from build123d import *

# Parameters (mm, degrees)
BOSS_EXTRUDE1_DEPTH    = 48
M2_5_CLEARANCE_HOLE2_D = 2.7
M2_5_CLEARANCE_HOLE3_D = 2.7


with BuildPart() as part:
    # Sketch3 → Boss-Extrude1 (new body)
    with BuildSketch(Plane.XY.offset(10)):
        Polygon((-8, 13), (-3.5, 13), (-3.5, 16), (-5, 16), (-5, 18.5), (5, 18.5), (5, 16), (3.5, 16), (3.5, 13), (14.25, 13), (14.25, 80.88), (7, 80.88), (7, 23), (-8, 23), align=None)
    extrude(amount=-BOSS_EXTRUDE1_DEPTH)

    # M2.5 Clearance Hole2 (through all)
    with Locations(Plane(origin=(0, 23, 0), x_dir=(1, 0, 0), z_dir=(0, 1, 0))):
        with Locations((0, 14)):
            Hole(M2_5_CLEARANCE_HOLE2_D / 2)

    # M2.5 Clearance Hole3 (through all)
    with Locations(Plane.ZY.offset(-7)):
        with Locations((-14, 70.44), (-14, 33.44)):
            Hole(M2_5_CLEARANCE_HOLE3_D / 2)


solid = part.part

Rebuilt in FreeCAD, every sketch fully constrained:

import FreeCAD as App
import Part
import Sketcher

V = App.Vector
Q = App.Units.Quantity

doc = App.newDocument("Part")
body = doc.addObject("PartDesign::Body", "Body")

# Sketch on XY plane
sketch1 = doc.addObject("Sketcher::SketchObject", "Sketch")
body.addObject(sketch1)
sketch1.AttachmentSupport = (doc.XY_Plane, [""])
sketch1.MapMode = "FlatFace"
sketch1.AttachmentOffset = App.Placement(V(0, 0, 10), App.Rotation())
sketch1.addGeometry(Part.LineSegment(V(-8, 13, 0), V(-3.5, 13, 0)), False)
sketch1.addGeometry(Part.LineSegment(V(-3.5, 13, 0), V(-3.5, 16, 0)), False)
sketch1.addGeometry(Part.LineSegment(V(-3.5, 16, 0), V(-5, 16, 0)), False)
sketch1.addGeometry(Part.LineSegment(V(-5, 16, 0), V(-5, 18.5, 0)), False)
sketch1.addGeometry(Part.LineSegment(V(-5, 18.5, 0), V(5, 18.5, 0)), False)
sketch1.addGeometry(Part.LineSegment(V(5, 18.5, 0), V(5, 16, 0)), False)
sketch1.addGeometry(Part.LineSegment(V(5, 16, 0), V(3.5, 16, 0)), False)
sketch1.addGeometry(Part.LineSegment(V(3.5, 16, 0), V(3.5, 13, 0)), False)
sketch1.addGeometry(Part.LineSegment(V(3.5, 13, 0), V(14.2, 13, 0)), False)
sketch1.addGeometry(Part.LineSegment(V(14.2, 13, 0), V(14.2, 80.9, 0)), False)
sketch1.addGeometry(Part.LineSegment(V(14.2, 80.9, 0), V(7, 80.9, 0)), False)
sketch1.addGeometry(Part.LineSegment(V(7, 80.9, 0), V(7, 23, 0)), False)
sketch1.addGeometry(Part.LineSegment(V(7, 23, 0), V(-8, 23, 0)), False)
sketch1.addGeometry(Part.LineSegment(V(-8, 23, 0), V(-8, 13, 0)), False)
sketch1.addConstraint(Sketcher.Constraint("Coincident", 0, 2, 1, 1))
sketch1.addConstraint(Sketcher.Constraint("Coincident", 1, 2, 2, 1))
sketch1.addConstraint(Sketcher.Constraint("Coincident", 2, 2, 3, 1))
sketch1.addConstraint(Sketcher.Constraint("Coincident", 3, 2, 4, 1))
sketch1.addConstraint(Sketcher.Constraint("Coincident", 4, 2, 5, 1))
sketch1.addConstraint(Sketcher.Constraint("Coincident", 5, 2, 6, 1))
sketch1.addConstraint(Sketcher.Constraint("Coincident", 6, 2, 7, 1))
sketch1.addConstraint(Sketcher.Constraint("Coincident", 7, 2, 8, 1))
sketch1.addConstraint(Sketcher.Constraint("Coincident", 8, 2, 9, 1))
sketch1.addConstraint(Sketcher.Constraint("Coincident", 9, 2, 10, 1))
sketch1.addConstraint(Sketcher.Constraint("Coincident", 10, 2, 11, 1))
sketch1.addConstraint(Sketcher.Constraint("Coincident", 11, 2, 12, 1))
sketch1.addConstraint(Sketcher.Constraint("Coincident", 12, 2, 13, 1))
sketch1.addConstraint(Sketcher.Constraint("Coincident", 13, 2, 0, 1))
sketch1.addConstraint(Sketcher.Constraint("Horizontal", 0))
sketch1.addConstraint(Sketcher.Constraint("Vertical", 1))
sketch1.addConstraint(Sketcher.Constraint("Horizontal", 2))
sketch1.addConstraint(Sketcher.Constraint("Vertical", 3))
sketch1.addConstraint(Sketcher.Constraint("Horizontal", 4))
sketch1.addConstraint(Sketcher.Constraint("Vertical", 5))
sketch1.addConstraint(Sketcher.Constraint("Horizontal", 6))
sketch1.addConstraint(Sketcher.Constraint("Vertical", 7))
sketch1.addConstraint(Sketcher.Constraint("Horizontal", 8))
sketch1.addConstraint(Sketcher.Constraint("Vertical", 9))
sketch1.addConstraint(Sketcher.Constraint("Horizontal", 10))
sketch1.addConstraint(Sketcher.Constraint("Vertical", 11))
sketch1.addConstraint(Sketcher.Constraint("Horizontal", 12))
sketch1.addConstraint(Sketcher.Constraint("Vertical", 13))
sketch1.addConstraint(Sketcher.Constraint("Symmetric", 2, 2, 5, 2, -2))
sketch1.addConstraint(Sketcher.Constraint("Symmetric", 0, 2, 7, 2, -2))
sketch1.addConstraint(Sketcher.Constraint("Equal", 4, 13))
sketch1.addConstraint(Sketcher.Constraint("DistanceX", 4, 1, 4, 2, Q("10 mm")))
sketch1.addConstraint(Sketcher.Constraint("DistanceX", 12, 2, 12, 1, Q("15 mm")))
sketch1.addConstraint(Sketcher.Constraint("DistanceY", 1, 1, 1, 2, Q("3 mm")))
sketch1.addConstraint(Sketcher.Constraint("DistanceX", 0, 1, 0, 2, Q("4.5 mm")))
sketch1.addConstraint(Sketcher.Constraint("DistanceX", 2, 2, 2, 1, Q("1.5 mm")))
sketch1.addConstraint(Sketcher.Constraint("DistanceY", 3, 1, 3, 2, Q("2.5 mm")))
sketch1.addConstraint(Sketcher.Constraint("DistanceY", -1, 1, 0, 2, Q("13 mm")))
sketch1.addConstraint(Sketcher.Constraint("DistanceX", 8, 1, 8, 2, Q("10.75 mm")))
sketch1.addConstraint(Sketcher.Constraint("DistanceY", 9, 1, 9, 2, Q("67.88 mm")))
pad1 = doc.addObject("PartDesign::Pad", "Pad")
body.addObject(pad1)
pad1.Profile = sketch1
pad1.Length = 48
pad1.Reversed = True

# Sketch on XZ plane
sketch2 = doc.addObject("Sketcher::SketchObject", "Sketch001")
body.addObject(sketch2)
sketch2.AttachmentSupport = (doc.XZ_Plane, [""])
sketch2.MapMode = "FlatFace"
sketch2.AttachmentOffset = App.Placement(V(0, 0, -23), App.Rotation())
sketch2.addGeometry(Part.Circle(V(0, -14, 0), V(0, 0, 1), 1.4), False)
sketch2.addConstraint(Sketcher.Constraint("PointOnObject", 0, 3, -2))
sketch2.addConstraint(Sketcher.Constraint("Diameter", 0, Q("2.7 mm")))
sketch2.addConstraint(Sketcher.Constraint("DistanceY", 0, 3, -1, 1, Q("14 mm")))
doc.recompute()
hole = doc.addObject("PartDesign::Hole", "Hole")
body.addObject(hole)
hole.Profile = sketch2
hole.ThreadType = "None"
hole.Diameter = 2.7
hole.DepthType = "ThroughAll"
hole.Reversed = True

# Sketch on YZ plane
sketch3 = doc.addObject("Sketcher::SketchObject", "Sketch002")
body.addObject(sketch3)
sketch3.AttachmentSupport = (doc.YZ_Plane, [""])
sketch3.MapMode = "FlatFace"
sketch3.AttachmentOffset = App.Placement(V(0, 0, 7), App.Rotation())
sketch3.addGeometry(Part.Circle(V(70.4, -14, 0), V(0, 0, 1), 1.4), False)
sketch3.addGeometry(Part.Circle(V(33.4, -14, 0), V(0, 0, 1), 1.4), False)
sketch3.addConstraint(Sketcher.Constraint("Equal", 0, 1))
sketch3.addConstraint(Sketcher.Constraint("Horizontal", 0, 3, 1, 3))
sketch3.addConstraint(Sketcher.Constraint("Diameter", 0, Q("2.7 mm")))
sketch3.addConstraint(Sketcher.Constraint("DistanceY", 0, 3, -1, 1, Q("14 mm")))
sketch3.addConstraint(Sketcher.Constraint("DistanceX", 1, 3, 0, 3, Q("37 mm")))
sketch3.addConstraint(Sketcher.Constraint("DistanceX", -1, 1, 0, 3, Q("70.44 mm")))
doc.recompute()
hole2 = doc.addObject("PartDesign::Hole", "Hole001")
body.addObject(hole2)
hole2.Profile = sketch3
hole2.ThreadType = "None"
hole2.Diameter = 2.7
hole2.DepthType = "ThroughAll"
hole2.Reversed = True

doc.recompute()
